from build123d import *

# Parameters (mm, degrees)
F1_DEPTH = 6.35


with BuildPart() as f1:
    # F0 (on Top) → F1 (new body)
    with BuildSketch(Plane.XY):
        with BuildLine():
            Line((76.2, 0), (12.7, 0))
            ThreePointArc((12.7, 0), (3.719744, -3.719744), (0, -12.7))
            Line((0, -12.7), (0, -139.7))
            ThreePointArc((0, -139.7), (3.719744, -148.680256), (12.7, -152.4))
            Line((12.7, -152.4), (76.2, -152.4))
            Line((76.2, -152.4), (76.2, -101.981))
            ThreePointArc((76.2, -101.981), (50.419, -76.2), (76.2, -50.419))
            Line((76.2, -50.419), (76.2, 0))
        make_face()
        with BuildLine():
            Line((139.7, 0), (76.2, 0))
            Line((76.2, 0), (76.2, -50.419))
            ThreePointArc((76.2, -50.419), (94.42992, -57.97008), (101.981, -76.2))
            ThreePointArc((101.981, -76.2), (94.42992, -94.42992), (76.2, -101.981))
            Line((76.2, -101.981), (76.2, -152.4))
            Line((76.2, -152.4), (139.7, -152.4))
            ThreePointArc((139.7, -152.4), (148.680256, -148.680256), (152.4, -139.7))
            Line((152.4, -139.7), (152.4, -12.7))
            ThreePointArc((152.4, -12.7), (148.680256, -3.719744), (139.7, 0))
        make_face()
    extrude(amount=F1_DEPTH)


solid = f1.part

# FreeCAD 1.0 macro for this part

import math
import FreeCAD as App
import Part
import Sketcher
Q = App.Units.Quantity

doc = App.newDocument("Part")
body = doc.addObject("PartDesign::Body", "Body")

# Sketch on XY plane
sketch1 = body.newObject("Sketcher::SketchObject", "Sketch")
sketch1.AttachmentSupport = (doc.getObject("XY_Plane"), [""])
sketch1.MapMode = "FlatFace"
sketch1.addGeometry(Part.ArcOfCircle(Part.Circle(App.Vector(13, -13, 0), App.Vector(0, 0, 1), 13), math.radians(90), math.radians(180)), False)
sketch1.addGeometry(Part.LineSegment(App.Vector(0, -13, 0), App.Vector(0, -140, 0)), False)
sketch1.addGeometry(Part.ArcOfCircle(Part.Circle(App.Vector(13, -140, 0), App.Vector(0, 0, 1), 13), math.radians(-180), math.radians(-90)), False)
sketch1.addGeometry(Part.LineSegment(App.Vector(13, -152, 0), App.Vector(140, -152, 0)), False)
sketch1.addGeometry(Part.ArcOfCircle(Part.Circle(App.Vector(140, -140, 0), App.Vector(0, 0, 1), 13), math.radians(-90), math.radians(0)), False)
sketch1.addGeometry(Part.LineSegment(App.Vector(152, -140, 0), App.Vector(152, -13, 0)), False)
sketch1.addGeometry(Part.ArcOfCircle(Part.Circle(App.Vector(140, -13, 0), App.Vector(0, 0, 1), 13), math.radians(0), math.radians(90)), False)
sketch1.addGeometry(Part.LineSegment(App.Vector(140, 0, 0), App.Vector(13, 0, 0)), False)
sketch1.addGeometry(Part.ArcOfCircle(Part.Circle(App.Vector(76, -76, 0), App.Vector(0, 0, 1), 26), math.radians(90), math.radians(270)), False)
sketch1.addGeometry(Part.ArcOfCircle(Part.Circle(App.Vector(76, -76, 0), App.Vector(0, 0, 1), 26), math.radians(0), math.radians(90)), False)
sketch1.addGeometry(Part.ArcOfCircle(Part.Circle(App.Vector(76, -76, 0), App.Vector(0, 0, 1), 26), math.radians(-90), math.radians(0)), False)
sketch1.addConstraint(Sketcher.Constraint("Tangent", 0, 2, 1, 1))
sketch1.addConstraint(Sketcher.Constraint("Tangent", 1, 2, 2, 1))
sketch1.addConstraint(Sketcher.Constraint("Tangent", 2, 2, 3, 1))
sketch1.addConstraint(Sketcher.Constraint("Tangent", 3, 2, 4, 1))
sketch1.addConstraint(Sketcher.Constraint("Tangent", 4, 2, 5, 1))
sketch1.addConstraint(Sketcher.Constraint("Tangent", 5, 2, 6, 1))
sketch1.addConstraint(Sketcher.Constraint("Tangent", 6, 2, 7, 1))
sketch1.addConstraint(Sketcher.Constraint("Tangent", 7, 2, 0, 1))
sketch1.addConstraint(Sketcher.Constraint("Tangent", 8, 1, 9, 2))
sketch1.addConstraint(Sketcher.Constraint("Tangent", 9, 1, 10, 2))
sketch1.addConstraint(Sketcher.Constraint("Tangent", 10, 1, 8, 2))
sketch1.addConstraint(Sketcher.Constraint("Vertical", 1))
sketch1.addConstraint(Sketcher.Constraint("Horizontal", 3))
sketch1.addConstraint(Sketcher.Constraint("Vertical", 5))
sketch1.addConstraint(Sketcher.Constraint("Horizontal", 7))
sketch1.addConstraint(Sketcher.Constraint("Equal", 0, 2))
sketch1.addConstraint(Sketcher.Constraint("Equal", 2, 4))
sketch1.addConstraint(Sketcher.Constraint("Equal", 4, 6))
sketch1.addConstraint(Sketcher.Constraint("PointOnObject", 0, 2, -2))
sketch1.addConstraint(Sketcher.Constraint("PointOnObject", 6, 2, -1))
sketch1.addConstraint(Sketcher.Constraint("Horizontal", 10, 3, 9, 1))
sketch1.addConstraint(Sketcher.Constraint("Vertical", 10, 3, 8, 1))
sketch1.addConstraint(Sketcher.Constraint("Vertical", 8, 1, 10, 1))
sketch1.addConstraint(Sketcher.Constraint("Equal", 7, 1))
sketch1.addConstraint(Sketcher.Constraint("Radius", 0, Q("0.5 in")))
sketch1.addConstraint(Sketcher.Constraint("DistanceX", 3, 1, 3, 2, Q("5 in")))
sketch1.addConstraint(Sketcher.Constraint("DistanceX", -1, 1, 8, 3, Q("3 in")))
sketch1.addConstraint(Sketcher.Constraint("DistanceY", 8, 3, -1, 1, Q("3 in")))
sketch1.addConstraint(Sketcher.Constraint("Radius", 8, Q("1.015 in")))
pad1 = body.newObject("PartDesign::Pad", "Pad")
pad1.Profile = sketch1
pad1.Length = Q("0.25 in")

doc.recompute()
